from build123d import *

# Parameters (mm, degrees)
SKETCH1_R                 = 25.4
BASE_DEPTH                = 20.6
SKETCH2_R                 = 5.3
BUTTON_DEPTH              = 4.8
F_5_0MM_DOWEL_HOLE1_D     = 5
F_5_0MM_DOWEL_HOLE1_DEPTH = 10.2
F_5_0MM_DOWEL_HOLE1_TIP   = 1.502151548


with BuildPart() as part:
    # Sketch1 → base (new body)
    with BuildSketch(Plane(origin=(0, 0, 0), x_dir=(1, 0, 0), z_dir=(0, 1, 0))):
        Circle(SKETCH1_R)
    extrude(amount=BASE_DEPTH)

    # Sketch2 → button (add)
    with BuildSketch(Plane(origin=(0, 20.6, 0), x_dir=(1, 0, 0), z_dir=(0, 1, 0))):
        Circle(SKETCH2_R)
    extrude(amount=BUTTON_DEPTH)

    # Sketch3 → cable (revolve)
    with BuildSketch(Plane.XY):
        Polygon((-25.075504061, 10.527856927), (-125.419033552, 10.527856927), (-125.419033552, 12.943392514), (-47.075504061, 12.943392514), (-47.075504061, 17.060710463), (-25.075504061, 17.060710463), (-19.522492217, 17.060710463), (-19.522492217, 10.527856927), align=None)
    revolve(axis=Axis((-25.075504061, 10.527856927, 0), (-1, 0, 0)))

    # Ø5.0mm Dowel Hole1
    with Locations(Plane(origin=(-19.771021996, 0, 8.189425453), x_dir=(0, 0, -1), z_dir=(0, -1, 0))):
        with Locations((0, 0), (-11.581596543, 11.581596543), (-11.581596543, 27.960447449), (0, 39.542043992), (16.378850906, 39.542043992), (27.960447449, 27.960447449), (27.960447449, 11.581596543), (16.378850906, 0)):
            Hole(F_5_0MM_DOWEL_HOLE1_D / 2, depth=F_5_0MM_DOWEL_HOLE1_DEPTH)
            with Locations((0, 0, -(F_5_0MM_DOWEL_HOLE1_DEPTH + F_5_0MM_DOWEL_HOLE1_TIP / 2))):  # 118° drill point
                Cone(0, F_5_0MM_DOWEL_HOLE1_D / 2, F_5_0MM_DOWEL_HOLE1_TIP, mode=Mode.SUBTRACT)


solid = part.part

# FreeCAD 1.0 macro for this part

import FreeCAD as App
import Part
import Sketcher

doc = App.newDocument("Part")
body = doc.addObject("PartDesign::Body", "Body")

sketch1 = doc.addObject("Sketcher::SketchObject", "Sketch")
body.addObject(sketch1)
sketch1.AttachmentSupport = (doc.XZ_Plane, [""])
sketch1.MapMode = "FlatFace"
sketch1.addGeometry(Part.Circle(App.Vector(0, 0, 0), App.Vector(0, 0, 1), 25), False)
sketch1.addConstraint([
    Sketcher.Constraint("Coincident", 0, 3, -1, 1),
    Sketcher.Constraint("Diameter", 0, 50.8),
])
pad1 = doc.addObject("PartDesign::Pad", "Pad")
body.addObject(pad1)
pad1.Profile = sketch1
pad1.Length = 20.6
pad1.Reversed = True

sketch2 = doc.addObject("Sketcher::SketchObject", "Sketch001")
body.addObject(sketch2)
sketch2.AttachmentSupport = (doc.XZ_Plane, [""])
sketch2.MapMode = "FlatFace"
sketch2.AttachmentOffset = App.Placement(App.Vector(0, 0, -20.6), App.Rotation())
sketch2.addGeometry(Part.Circle(App.Vector(0, 0, 0), App.Vector(0, 0, 1), 5), False)
sketch2.addConstraint([
    Sketcher.Constraint("Coincident", 0, 3, -1, 1),
    Sketcher.Constraint("Diameter", 0, 10.6),
])
pad2 = doc.addObject("PartDesign::Pad", "Pad001")
body.addObject(pad2)
pad2.Profile = sketch2
pad2.Length = 4.8
pad2.Reversed = True

sketch3 = doc.addObject("Sketcher::SketchObject", "Sketch002")
body.addObject(sketch3)
sketch3.AttachmentSupport = (doc.XY_Plane, [""])
sketch3.MapMode = "FlatFace"
sketch3.addGeometry([
    Part.LineSegment(App.Vector(-125.4, 10.5, 0), App.Vector(-19.5, 10.5, 0)),
    Part.LineSegment(App.Vector(-19.5, 10.5, 0), App.Vector(-19.5, 17.1, 0)),
    Part.LineSegment(App.Vector(-19.5, 17.1, 0), App.Vector(-47.1, 17.1, 0)),
    Part.LineSegment(App.Vector(-47.1, 17.1, 0), App.Vector(-47.1, 12.9, 0)),
    Part.LineSegment(App.Vector(-47.1, 12.9, 0), App.Vector(-125.4, 12.9, 0)),
    Part.LineSegment(App.Vector(-125.4, 12.9, 0), App.Vector(-125.4, 10.5, 0)),
], False)
sketch3.addGeometry(Part.LineSegment(App.Vector(-19.5, 10.5, 0), App.Vector(-125.4, 10.5, 0)), True)
sketch3.addConstraint([
    Sketcher.Constraint("Coincident", 0, 2, 1, 1),
    Sketcher.Constraint("Coincident", 1, 2, 2, 1),
    Sketcher.Constraint("Coincident", 2, 2, 3, 1),
    Sketcher.Constraint("Coincident", 3, 2, 4, 1),
    Sketcher.Constraint("Coincident", 4, 2, 5, 1),
    Sketcher.Constraint("Coincident", 5, 2, 0, 1),
    Sketcher.Constraint("Horizontal", 0),
    Sketcher.Constraint("Vertical", 1),
    Sketcher.Constraint("Horizontal", 2),
    Sketcher.Constraint("Vertical", 3),
    Sketcher.Constraint("Horizontal", 4),
    Sketcher.Constraint("Vertical", 5),
    Sketcher.Constraint("Horizontal", 6),
    Sketcher.Constraint("Coincident", 6, 1, 0, 2),
    Sketcher.Constraint("Vertical", 4, 2, 6, 2),
    Sketcher.Constraint("DistanceX", 0, 1, 0, 2, 105.896541),
    Sketcher.Constraint("DistanceX", 2, 2, 2, 1, 27.553012),
    Sketcher.Constraint("DistanceY", 1, 1, 1, 2, 6.532854),
    Sketcher.Constraint("DistanceY", 3, 2, 3, 1, 4.117318),
    Sketcher.Constraint("DistanceY", -1, 1, 1, 2, 17.06071),
    Sketcher.Constraint("DistanceX", 0, 2, -1, 1, 19.522492),
])
revolution = doc.addObject("PartDesign::Revolution", "Revolution")
body.addObject(revolution)
revolution.Profile = sketch3
revolution.ReferenceAxis = (sketch3, ["Axis0"])
revolution.Angle = 360

sketch4 = doc.addObject("Sketcher::SketchObject", "Sketch003")
body.addObject(sketch4)
sketch4.AttachmentSupport = (doc.XZ_Plane, [""])
sketch4.MapMode = "FlatFace"
sketch4.addGeometry([
    Part.Circle(App.Vector(-19.8, 8.2, 0), App.Vector(0, 0, 1), 2.5),
    Part.Circle(App.Vector(-8.2, 19.8, 0), App.Vector(0, 0, 1), 2.5),
    Part.Circle(App.Vector(8.2, 19.8, 0), App.Vector(0, 0, 1), 2.5),
    Part.Circle(App.Vector(19.8, 8.2, 0), App.Vector(0, 0, 1), 2.5),
    Part.Circle(App.Vector(19.8, -8.2, 0), App.Vector(0, 0, 1), 2.5),
    Part.Circle(App.Vector(8.2, -19.8, 0), App.Vector(0, 0, 1), 2.5),
    Part.Circle(App.Vector(-8.2, -19.8, 0), App.Vector(0, 0, 1), 2.5),
    Part.Circle(App.Vector(-19.8, -8.2, 0), App.Vector(0, 0, 1), 2.5),
], False)
sketch4.addConstraint([
    Sketcher.Constraint("Equal", 0, 1),
    Sketcher.Constraint("Equal", 1, 2),
    Sketcher.Constraint("Equal", 2, 3),
    Sketcher.Constraint("Equal", 3, 4),
    Sketcher.Constraint("Equal", 4, 5),
    Sketcher.Constraint("Equal", 5, 6),
    Sketcher.Constraint("Equal", 6, 7),
    Sketcher.Constraint("Symmetric", 0, 3, 4, 3, -1, 1),
    Sketcher.Constraint("Symmetric", 1, 3, 5, 3, -1, 1),
    Sketcher.Constraint("Symmetric", 2, 3, 6, 3, -1, 1),
    Sketcher.Constraint("Symmetric", 3, 3, 7, 3, -1, 1),
    Sketcher.Constraint("Symmetric", 1, 3, 2, 3, -2),
    Sketcher.Constraint("Symmetric", 0, 3, 3, 3, -2),
    Sketcher.Constraint("Diameter", 0, 5.0),
    Sketcher.Constraint("DistanceX", 0, 3, -1, 1, 19.771022),
    Sketcher.Constraint("DistanceY", -1, 1, 1, 3, 19.771022),
    Sketcher.Constraint("DistanceX", 1, 3, 2, 3, 16.378851),
    Sketcher.Constraint("DistanceY", 4, 3, 3, 3, 16.378851),
])
doc.recompute()
hole = doc.addObject("PartDesign::Hole", "Hole")
body.addObject(hole)
hole.Profile = sketch4
hole.ThreadType = "None"
hole.Diameter = 5
hole.DepthType = "Dimension"
hole.Depth = 10.2
hole.DrillPoint = "Angled"
hole.DrillPointAngle = 118

doc.recompute()
